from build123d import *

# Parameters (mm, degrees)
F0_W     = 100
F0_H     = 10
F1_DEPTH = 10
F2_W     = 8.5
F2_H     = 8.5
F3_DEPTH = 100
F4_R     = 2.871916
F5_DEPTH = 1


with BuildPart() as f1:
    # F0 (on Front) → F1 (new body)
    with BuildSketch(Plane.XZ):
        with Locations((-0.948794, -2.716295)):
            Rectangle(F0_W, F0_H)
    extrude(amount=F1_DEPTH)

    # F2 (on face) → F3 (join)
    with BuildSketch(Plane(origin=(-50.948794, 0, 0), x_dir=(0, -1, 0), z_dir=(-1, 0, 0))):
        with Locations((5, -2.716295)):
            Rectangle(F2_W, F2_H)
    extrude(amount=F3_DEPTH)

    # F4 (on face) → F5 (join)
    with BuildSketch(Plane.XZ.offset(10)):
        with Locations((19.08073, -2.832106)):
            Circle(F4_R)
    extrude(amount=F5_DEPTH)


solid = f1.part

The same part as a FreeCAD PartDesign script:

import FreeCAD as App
import Part
import Sketcher
from FreeCAD import Vector
Q = App.Units.Quantity


def add_polygon(sketch, points):
    """Adds a closed chain of lines whose ends are joined by coincident constraints."""
    first, n = sketch.GeometryCount, len(points)
    for a, b in zip(points, points[1:] + points[:1]):
        sketch.addGeometry(Part.LineSegment(App.Vector(*a, 0), App.Vector(*b, 0)), False)
    for i in range(n):
        sketch.addConstraint(Sketcher.Constraint("Coincident", first + i, 2, first + (i + 1) % n, 1))

doc = App.newDocument("Part")
params = doc.addObject("Spreadsheet::Sheet", "Params")
for row, (alias, value) in enumerate([
    ("sketch1_width", "100 mm"),
    ("sketch1_height", "10 mm"),
    ("pad1_length", "10 mm"),
    ("sketch2_width", "8.5 mm"),
    ("pad2_length", "100 mm"),
    ("pad3_length", "1 mm"),
], start=1):
    params.set(f"A{row}", alias)
    params.set(f"B{row}", "=" + value)
    params.setAlias(f"B{row}", alias)

body = doc.addObject("PartDesign::Body", "Body")

# Sketch on XZ plane
sketch1 = body.newObject("Sketcher::SketchObject", "Sketch")
sketch1.AttachmentSupport = (doc.getObject("XZ_Plane"), [""])
sketch1.MapMode = "FlatFace"
add_polygon(sketch1, [(-51, 2), (-51, -8), (49, -8), (49, 2)])  # lines 0-3
sketch1.addConstraint([
    Sketcher.Constraint("Vertical", 0),
    Sketcher.Constraint("Horizontal", 1),
    Sketcher.Constraint("Vertical", 2),
    Sketcher.Constraint("Horizontal", 3),
    Sketcher.Constraint("DistanceX", 1, 1, 1, 2, Q("100 mm")),
    Sketcher.Constraint("DistanceY", 0, 2, 0, 1, Q("10 mm")),
    Sketcher.Constraint("DistanceX", 0, 2, -1, 1, Q("50.948794 mm")),
    Sketcher.Constraint("DistanceY", 0, 2, -1, 1, Q("7.716295 mm")),
])
sketch1.setExpression("Constraints[8]", "Params.sketch1_width")
sketch1.setExpression("Constraints[9]", "Params.sketch1_height")
pad1 = body.newObject("PartDesign::Pad", "Pad")
pad1.Profile = sketch1
pad1.setExpression("Length", "Params.pad1_length")

# Sketch on YZ plane
sketch2 = body.newObject("Sketcher::SketchObject", "Sketch001")
sketch2.AttachmentSupport = (doc.getObject("YZ_Plane"), [""])
sketch2.MapMode = "FlatFace"
sketch2.AttachmentOffset = App.Placement(Vector(0, 0, -50.948794), App.Rotation())
add_polygon(sketch2, [(-1, 2), (-1, -7), (-9, -7), (-9, 2)])  # lines 0-3
sketch2.addConstraint([
    Sketcher.Constraint("Vertical", 0),
    Sketcher.Constraint("Horizontal", 1),
    Sketcher.Constraint("Vertical", 2),
    Sketcher.Constraint("Horizontal", 3),
    Sketcher.Constraint("Equal", 3, 0),
    Sketcher.Constraint("DistanceX", 1, 2, 1, 1, Q("8.5 mm")),
    Sketcher.Constraint("DistanceX", 0, 2, -1, 1, Q("0.75 mm")),
    Sketcher.Constraint("DistanceY", 0, 2, -1, 1, Q("6.966295 mm")),
])
sketch2.setExpression("Constraints[9]", "Params.sketch2_width")
pad2 = body.newObject("PartDesign::Pad", "Pad001")
pad2.Profile = sketch2
pad2.setExpression("Length", "Params.pad2_length")
pad2.Reversed = True

# Sketch on XZ plane
sketch3 = body.newObject("Sketcher::SketchObject", "Sketch002")
sketch3.AttachmentSupport = (doc.getObject("XZ_Plane"), [""])
sketch3.MapMode = "FlatFace"
sketch3.AttachmentOffset = App.Placement(Vector(0, 0, 10), App.Rotation())
sketch3.addGeometry(Part.Circle(Vector(19.1, -2.8, 0), Vector(0, 0, 1), 2.9), False)
sketch3.addConstraint([
    Sketcher.Constraint("Diameter", 0, Q("5.743832 mm")),
    Sketcher.Constraint("DistanceX", -1, 1, 0, 3, Q("19.08073 mm")),
    Sketcher.Constraint("DistanceY", 0, 3, -1, 1, Q("2.832106 mm")),
])
pad3 = body.newObject("PartDesign::Pad", "Pad002")
pad3.Profile = sketch3
pad3.setExpression("Length", "Params.pad3_length")

doc.recompute()
